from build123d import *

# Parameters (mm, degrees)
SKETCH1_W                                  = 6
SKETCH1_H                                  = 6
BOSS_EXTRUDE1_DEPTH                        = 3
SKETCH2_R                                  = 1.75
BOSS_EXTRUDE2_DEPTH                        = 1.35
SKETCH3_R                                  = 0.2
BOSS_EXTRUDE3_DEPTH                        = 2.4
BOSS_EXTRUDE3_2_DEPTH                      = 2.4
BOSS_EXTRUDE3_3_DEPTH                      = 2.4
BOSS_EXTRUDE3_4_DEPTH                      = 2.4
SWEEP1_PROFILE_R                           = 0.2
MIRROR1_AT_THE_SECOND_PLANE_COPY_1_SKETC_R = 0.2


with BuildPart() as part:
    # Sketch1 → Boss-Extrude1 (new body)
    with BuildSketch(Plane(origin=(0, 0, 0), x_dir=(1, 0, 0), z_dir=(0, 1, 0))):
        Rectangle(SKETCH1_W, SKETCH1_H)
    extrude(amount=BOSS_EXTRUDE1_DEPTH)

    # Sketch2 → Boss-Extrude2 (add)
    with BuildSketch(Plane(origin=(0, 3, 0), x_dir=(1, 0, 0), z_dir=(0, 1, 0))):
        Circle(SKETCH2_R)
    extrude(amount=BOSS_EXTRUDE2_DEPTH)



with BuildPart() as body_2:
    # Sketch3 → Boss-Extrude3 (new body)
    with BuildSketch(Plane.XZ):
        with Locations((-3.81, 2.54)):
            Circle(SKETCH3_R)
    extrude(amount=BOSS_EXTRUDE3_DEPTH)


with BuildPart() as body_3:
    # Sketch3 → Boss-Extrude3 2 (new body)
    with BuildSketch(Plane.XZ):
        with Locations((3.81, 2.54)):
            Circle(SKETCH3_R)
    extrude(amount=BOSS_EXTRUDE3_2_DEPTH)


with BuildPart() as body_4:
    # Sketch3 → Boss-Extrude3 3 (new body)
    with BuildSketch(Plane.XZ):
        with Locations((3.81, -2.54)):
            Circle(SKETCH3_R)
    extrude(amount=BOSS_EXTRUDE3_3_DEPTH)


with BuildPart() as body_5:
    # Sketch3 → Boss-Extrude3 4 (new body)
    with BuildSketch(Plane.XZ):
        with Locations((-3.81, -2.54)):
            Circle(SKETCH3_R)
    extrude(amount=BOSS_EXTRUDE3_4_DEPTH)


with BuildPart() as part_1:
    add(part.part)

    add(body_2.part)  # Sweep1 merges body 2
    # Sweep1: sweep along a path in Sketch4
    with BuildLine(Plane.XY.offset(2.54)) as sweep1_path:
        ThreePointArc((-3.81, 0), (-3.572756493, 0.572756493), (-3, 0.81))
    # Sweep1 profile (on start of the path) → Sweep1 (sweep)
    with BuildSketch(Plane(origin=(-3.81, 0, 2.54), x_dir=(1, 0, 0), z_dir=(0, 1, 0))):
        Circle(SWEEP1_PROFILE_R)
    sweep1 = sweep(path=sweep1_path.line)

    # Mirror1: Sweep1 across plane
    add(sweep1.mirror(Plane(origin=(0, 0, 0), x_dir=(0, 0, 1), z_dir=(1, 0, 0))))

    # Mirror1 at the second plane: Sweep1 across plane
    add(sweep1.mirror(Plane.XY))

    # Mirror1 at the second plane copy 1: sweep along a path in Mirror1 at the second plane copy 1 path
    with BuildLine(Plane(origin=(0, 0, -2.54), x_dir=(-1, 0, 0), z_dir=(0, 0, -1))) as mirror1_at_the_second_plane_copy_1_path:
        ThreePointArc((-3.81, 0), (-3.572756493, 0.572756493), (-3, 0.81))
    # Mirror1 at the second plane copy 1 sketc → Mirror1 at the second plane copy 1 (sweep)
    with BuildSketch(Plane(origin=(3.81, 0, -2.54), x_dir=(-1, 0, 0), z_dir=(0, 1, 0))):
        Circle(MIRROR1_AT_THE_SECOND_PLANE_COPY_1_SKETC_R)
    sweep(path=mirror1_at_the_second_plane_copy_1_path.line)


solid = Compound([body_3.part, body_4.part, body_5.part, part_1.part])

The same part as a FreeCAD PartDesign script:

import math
import FreeCAD as App
import Part
import Sketcher

V = App.Vector
Q = App.Units.Quantity


def add_polygon(sketch, points):
    """Adds a closed chain of lines whose ends are joined by coincident constraints."""
    first, n = sketch.GeometryCount, len(points)
    for a, b in zip(points, points[1:] + points[:1]):
        sketch.addGeometry(Part.LineSegment(App.Vector(*a, 0), App.Vector(*b, 0)), False)
    for i in range(n):
        sketch.addConstraint(Sketcher.Constraint("Coincident", first + i, 2, first + (i + 1) % n, 1))

doc = App.newDocument("Part")
body = doc.addObject("PartDesign::Body", "Body")

sketch1 = body.newObject("Sketcher::SketchObject", "Sketch")
sketch1.AttachmentSupport = (doc.getObject("XZ_Plane"), [""])
sketch1.MapMode = "FlatFace"
add_polygon(sketch1, [(-3, -3), (-3, 3), (3, 3), (3, -3)])
sketch1.addConstraint(Sketcher.Constraint("Vertical", 0))
sketch1.addConstraint(Sketcher.Constraint("Horizontal", 1))
sketch1.addConstraint(Sketcher.Constraint("Vertical", 2))
sketch1.addConstraint(Sketcher.Constraint("Horizontal", 3))
sketch1.addConstraint(Sketcher.Constraint("Symmetric", 0, 2, 2, 2, -1, 1))
sketch1.addConstraint(Sketcher.Constraint("Equal", 3, 0))
sketch1.addConstraint(Sketcher.Constraint("DistanceX", 1, 1, 1, 2, Q("6 mm")))
pad1 = body.newObject("PartDesign::Pad", "Pad")
pad1.Profile = sketch1
pad1.Length = 3
pad1.Reversed = True

sketch2 = body.newObject("Sketcher::SketchObject", "Sketch001")
sketch2.AttachmentSupport = (doc.getObject("XZ_Plane"), [""])
sketch2.MapMode = "FlatFace"
sketch2.AttachmentOffset = App.Placement(V(0, 0, -3), App.Rotation())
sketch2.addGeometry(Part.Circle(V(0, 0, 0), V(0, 0, 1), 1.8), False)
sketch2.addConstraint(Sketcher.Constraint("Coincident", 0, 3, -1, 1))
sketch2.addConstraint(Sketcher.Constraint("Diameter", 0, Q("3.5 mm")))
pad2 = body.newObject("PartDesign::Pad", "Pad001")
pad2.Profile = sketch2
pad2.Length = 1.35
pad2.Reversed = True
body2 = doc.addObject("PartDesign::Body", "Body001")

sketch3 = body2.newObject("Sketcher::SketchObject", "Sketch002")
sketch3.AttachmentSupport = (doc.getObject("XZ_Plane001"), [""])
sketch3.MapMode = "FlatFace"
sketch3.addGeometry(Part.Circle(V(-3.81, 2.54, 0), V(0, 0, 1), 0.2), False)
sketch3.addConstraint(Sketcher.Constraint("Diameter", 0, Q("0.4 mm")))
sketch3.addConstraint(Sketcher.Constraint("DistanceX", 0, 3, -1, 1, Q("3.81 mm")))
sketch3.addConstraint(Sketcher.Constraint("DistanceY", -1, 1, 0, 3, Q("2.54 mm")))
pad3 = body2.newObject("PartDesign::Pad", "Pad002")
pad3.Profile = sketch3
pad3.Length = 2.4
body3 = doc.addObject("PartDesign::Body", "Body002")

sketch4 = body3.newObject("Sketcher::SketchObject", "Sketch003")
sketch4.AttachmentSupport = (doc.getObject("XZ_Plane002"), [""])
sketch4.MapMode = "FlatFace"
sketch4.addGeometry(Part.Circle(V(3.81, 2.54, 0), V(0, 0, 1), 0.2), False)
sketch4.addConstraint(Sketcher.Constraint("Diameter", 0, Q("0.4 mm")))
sketch4.addConstraint(Sketcher.Constraint("DistanceX", -1, 1, 0, 3, Q("3.81 mm")))
sketch4.addConstraint(Sketcher.Constraint("DistanceY", -1, 1, 0, 3, Q("2.54 mm")))
pad4 = body3.newObject("PartDesign::Pad", "Pad003")
pad4.Profile = sketch4
pad4.Length = 2.4
body4 = doc.addObject("PartDesign::Body", "Body003")

sketch5 = body4.newObject("Sketcher::SketchObject", "Sketch004")
sketch5.AttachmentSupport = (doc.getObject("XZ_Plane003"), [""])
sketch5.MapMode = "FlatFace"
sketch5.addGeometry(Part.Circle(V(3.81, -2.54, 0), V(0, 0, 1), 0.2), False)
sketch5.addConstraint(Sketcher.Constraint("Diameter", 0, Q("0.4 mm")))
sketch5.addConstraint(Sketcher.Constraint("DistanceX", -1, 1, 0, 3, Q("3.81 mm")))
sketch5.addConstraint(Sketcher.Constraint("DistanceY", 0, 3, -1, 1, Q("2.54 mm")))
pad5 = body4.newObject("PartDesign::Pad", "Pad004")
pad5.Profile = sketch5
pad5.Length = 2.4
body5 = doc.addObject("PartDesign::Body", "Body004")

sketch6 = body5.newObject("Sketcher::SketchObject", "Sketch005")
sketch6.AttachmentSupport = (doc.getObject("XZ_Plane004"), [""])
sketch6.MapMode = "FlatFace"
sketch6.addGeometry(Part.Circle(V(-3.81, -2.54, 0), V(0, 0, 1), 0.2), False)
sketch6.addConstraint(Sketcher.Constraint("Diameter", 0, Q("0.4 mm")))
sketch6.addConstraint(Sketcher.Constraint("DistanceX", 0, 3, -1, 1, Q("3.81 mm")))
sketch6.addConstraint(Sketcher.Constraint("DistanceY", 0, 3, -1, 1, Q("2.54 mm")))
pad6 = body5.newObject("PartDesign::Pad", "Pad005")
pad6.Profile = sketch6
pad6.Length = 2.4
body.AllowCompound = True
doc.recompute()

boolean = body.newObject("PartDesign::Boolean", "Boolean")
boolean.Type = "Fuse"
boolean.addObjects([body2])

sketch7 = body.newObject("Sketcher::SketchObject", "Sketch006")
sketch7.AttachmentSupport = (doc.getObject("XZ_Plane"), [""])
sketch7.MapMode = "FlatFace"
sketch7.addGeometry(Part.Circle(V(-3.81, 2.54, 0), V(0, 0, 1), 0.2), False)
sketch7.addConstraint(Sketcher.Constraint("Diameter", 0, Q("0.4 mm")))
sketch7.addConstraint(Sketcher.Constraint("DistanceX", 0, 3, -1, 1, Q("3.81 mm")))
sketch7.addConstraint(Sketcher.Constraint("DistanceY", -1, 1, 0, 3, Q("2.54 mm")))

sketch8 = body.newObject("Sketcher::SketchObject", "Sketch007")
sketch8.AttachmentSupport = (doc.getObject("XY_Plane"), [""])
sketch8.MapMode = "FlatFace"
sketch8.AttachmentOffset = App.Placement(V(0, 0, 2.54), App.Rotation())
sketch8.addGeometry(Part.ArcOfCircle(Part.Circle(V(-3, 0, 0), V(0, 0, 1), 0.8), math.radians(90), math.radians(180)), False)
sketch8.addConstraint(Sketcher.Constraint("PointOnObject", 0, 3, -1))
sketch8.addConstraint(Sketcher.Constraint("PointOnObject", 0, 2, -1))
sketch8.addConstraint(Sketcher.Constraint("Radius", 0, Q("0.81 mm")))
sketch8.addConstraint(Sketcher.Constraint("DistanceX", 0, 3, -1, 1, Q("3 mm")))
sketch8.addConstraint(Sketcher.Constraint("DistanceX", 0, 1, -1, 1, Q("3 mm")))
doc.recompute()

additivepipe = body.newObject("PartDesign::AdditivePipe", "AdditivePipe")
additivepipe.Profile = sketch7
additivepipe.Spine = (sketch8, ["Edge1"])
doc.recompute()

mirrored = body.newObject("PartDesign::Mirrored", "Mirrored")
mirrored.Originals = [additivepipe]
mirrored.MirrorPlane = (doc.getObject("YZ_Plane"), [""])
body.Tip = mirrored
doc.recompute()

mirrored2 = body.newObject("PartDesign::Mirrored", "Mirrored001")
mirrored2.Originals = [additivepipe]
mirrored2.MirrorPlane = (doc.getObject("XY_Plane"), [""])
body.Tip = mirrored2

sketch9 = body.newObject("Sketcher::SketchObject", "Sketch008")
sketch9.AttachmentSupport = (doc.getObject("XZ_Plane"), [""])
sketch9.MapMode = "FlatFace"
sketch9.addGeometry(Part.Circle(V(3.81, -2.54, 0), V(0, 0, 1), 0.2), False)
sketch9.addConstraint(Sketcher.Constraint("Diameter", 0, Q("0.4 mm")))
sketch9.addConstraint(Sketcher.Constraint("DistanceX", -1, 1, 0, 3, Q("3.81 mm")))
sketch9.addConstraint(Sketcher.Constraint("DistanceY", 0, 3, -1, 1, Q("2.54 mm")))

sketch10 = body.newObject("Sketcher::SketchObject", "Sketch009")
sketch10.AttachmentSupport = (doc.getObject("XY_Plane"), [""])
sketch10.MapMode = "FlatFace"
sketch10.AttachmentOffset = App.Placement(V(0, 0, -2.54), App.Rotation())
sketch10.addGeometry(Part.ArcOfCircle(Part.Circle(V(3, 0, 0), V(0, 0, 1), 0.8), math.radians(0), math.radians(90)), False)
sketch10.addConstraint(Sketcher.Constraint("PointOnObject", 0, 3, -1))
sketch10.addConstraint(Sketcher.Constraint("PointOnObject", 0, 1, -1))
sketch10.addConstraint(Sketcher.Constraint("Radius", 0, Q("0.81 mm")))
sketch10.addConstraint(Sketcher.Constraint("DistanceX", -1, 1, 0, 3, Q("3 mm")))
sketch10.addConstraint(Sketcher.Constraint("DistanceX", -1, 1, 0, 2, Q("3 mm")))
doc.recompute()

additivepipe2 = body.newObject("PartDesign::AdditivePipe", "AdditivePipe001")
additivepipe2.Profile = sketch9
additivepipe2.Spine = (sketch10, ["Edge1"])

doc.recompute()
